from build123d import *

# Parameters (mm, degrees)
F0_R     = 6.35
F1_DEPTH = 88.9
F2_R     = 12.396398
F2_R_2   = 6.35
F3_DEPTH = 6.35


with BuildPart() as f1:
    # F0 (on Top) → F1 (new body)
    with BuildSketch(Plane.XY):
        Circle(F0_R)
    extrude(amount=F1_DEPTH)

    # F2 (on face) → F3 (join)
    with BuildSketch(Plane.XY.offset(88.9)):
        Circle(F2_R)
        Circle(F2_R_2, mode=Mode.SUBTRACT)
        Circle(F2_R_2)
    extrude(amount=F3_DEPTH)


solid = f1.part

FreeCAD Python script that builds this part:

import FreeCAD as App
import Part
import Sketcher

V = App.Vector
Q = App.Units.Quantity

doc = App.newDocument("Part")
params = doc.addObject("Spreadsheet::Sheet", "Params")
for row, (alias, value) in enumerate([
    ("sketch1_diameter", "0.5 in"),
    ("pad1_length", "3.5 in"),
    ("pad2_length", "0.25 in"),
], start=1):
    params.set(f"A{row}", alias)
    params.set(f"B{row}", "=" + value)
    params.setAlias(f"B{row}", alias)

body = doc.addObject("PartDesign::Body", "Body")

sketch1 = doc.addObject("Sketcher::SketchObject", "Sketch")
body.addObject(sketch1)
sketch1.AttachmentSupport = (doc.XY_Plane, [""])
sketch1.MapMode = "FlatFace"
sketch1.addGeometry(Part.Circle(V(0, 0, 0), V(0, 0, 1), 6), False)
sketch1.addConstraint(Sketcher.Constraint("Coincident", 0, 3, -1, 1))
sketch1.addConstraint(Sketcher.Constraint("Diameter", 0, Q("0.5 in")))
sketch1.setExpression("Constraints[1]", "Params.sketch1_diameter")
pad1 = doc.addObject("PartDesign::Pad", "Pad")
body.addObject(pad1)
pad1.Profile = sketch1
pad1.setExpression("Length", "Params.pad1_length")

sketch2 = doc.addObject("Sketcher::SketchObject", "Sketch001")
body.addObject(sketch2)
sketch2.AttachmentSupport = (doc.XY_Plane, [""])
sketch2.MapMode = "FlatFace"
sketch2.AttachmentOffset = App.Placement(V(0, 0, 3.5 * 25.4), App.Rotation())
sketch2.addGeometry(Part.Circle(V(0, 0, 0), V(0, 0, 1), 12), False)
sketch2.addConstraint(Sketcher.Constraint("Coincident", 0, 3, -1, 1))
sketch2.addConstraint(Sketcher.Constraint("Diameter", 0, Q("24.792796 mm")))
pad2 = doc.addObject("PartDesign::Pad", "Pad001")
body.addObject(pad2)
pad2.Profile = sketch2
pad2.setExpression("Length", "Params.pad2_length")

doc.recompute()
